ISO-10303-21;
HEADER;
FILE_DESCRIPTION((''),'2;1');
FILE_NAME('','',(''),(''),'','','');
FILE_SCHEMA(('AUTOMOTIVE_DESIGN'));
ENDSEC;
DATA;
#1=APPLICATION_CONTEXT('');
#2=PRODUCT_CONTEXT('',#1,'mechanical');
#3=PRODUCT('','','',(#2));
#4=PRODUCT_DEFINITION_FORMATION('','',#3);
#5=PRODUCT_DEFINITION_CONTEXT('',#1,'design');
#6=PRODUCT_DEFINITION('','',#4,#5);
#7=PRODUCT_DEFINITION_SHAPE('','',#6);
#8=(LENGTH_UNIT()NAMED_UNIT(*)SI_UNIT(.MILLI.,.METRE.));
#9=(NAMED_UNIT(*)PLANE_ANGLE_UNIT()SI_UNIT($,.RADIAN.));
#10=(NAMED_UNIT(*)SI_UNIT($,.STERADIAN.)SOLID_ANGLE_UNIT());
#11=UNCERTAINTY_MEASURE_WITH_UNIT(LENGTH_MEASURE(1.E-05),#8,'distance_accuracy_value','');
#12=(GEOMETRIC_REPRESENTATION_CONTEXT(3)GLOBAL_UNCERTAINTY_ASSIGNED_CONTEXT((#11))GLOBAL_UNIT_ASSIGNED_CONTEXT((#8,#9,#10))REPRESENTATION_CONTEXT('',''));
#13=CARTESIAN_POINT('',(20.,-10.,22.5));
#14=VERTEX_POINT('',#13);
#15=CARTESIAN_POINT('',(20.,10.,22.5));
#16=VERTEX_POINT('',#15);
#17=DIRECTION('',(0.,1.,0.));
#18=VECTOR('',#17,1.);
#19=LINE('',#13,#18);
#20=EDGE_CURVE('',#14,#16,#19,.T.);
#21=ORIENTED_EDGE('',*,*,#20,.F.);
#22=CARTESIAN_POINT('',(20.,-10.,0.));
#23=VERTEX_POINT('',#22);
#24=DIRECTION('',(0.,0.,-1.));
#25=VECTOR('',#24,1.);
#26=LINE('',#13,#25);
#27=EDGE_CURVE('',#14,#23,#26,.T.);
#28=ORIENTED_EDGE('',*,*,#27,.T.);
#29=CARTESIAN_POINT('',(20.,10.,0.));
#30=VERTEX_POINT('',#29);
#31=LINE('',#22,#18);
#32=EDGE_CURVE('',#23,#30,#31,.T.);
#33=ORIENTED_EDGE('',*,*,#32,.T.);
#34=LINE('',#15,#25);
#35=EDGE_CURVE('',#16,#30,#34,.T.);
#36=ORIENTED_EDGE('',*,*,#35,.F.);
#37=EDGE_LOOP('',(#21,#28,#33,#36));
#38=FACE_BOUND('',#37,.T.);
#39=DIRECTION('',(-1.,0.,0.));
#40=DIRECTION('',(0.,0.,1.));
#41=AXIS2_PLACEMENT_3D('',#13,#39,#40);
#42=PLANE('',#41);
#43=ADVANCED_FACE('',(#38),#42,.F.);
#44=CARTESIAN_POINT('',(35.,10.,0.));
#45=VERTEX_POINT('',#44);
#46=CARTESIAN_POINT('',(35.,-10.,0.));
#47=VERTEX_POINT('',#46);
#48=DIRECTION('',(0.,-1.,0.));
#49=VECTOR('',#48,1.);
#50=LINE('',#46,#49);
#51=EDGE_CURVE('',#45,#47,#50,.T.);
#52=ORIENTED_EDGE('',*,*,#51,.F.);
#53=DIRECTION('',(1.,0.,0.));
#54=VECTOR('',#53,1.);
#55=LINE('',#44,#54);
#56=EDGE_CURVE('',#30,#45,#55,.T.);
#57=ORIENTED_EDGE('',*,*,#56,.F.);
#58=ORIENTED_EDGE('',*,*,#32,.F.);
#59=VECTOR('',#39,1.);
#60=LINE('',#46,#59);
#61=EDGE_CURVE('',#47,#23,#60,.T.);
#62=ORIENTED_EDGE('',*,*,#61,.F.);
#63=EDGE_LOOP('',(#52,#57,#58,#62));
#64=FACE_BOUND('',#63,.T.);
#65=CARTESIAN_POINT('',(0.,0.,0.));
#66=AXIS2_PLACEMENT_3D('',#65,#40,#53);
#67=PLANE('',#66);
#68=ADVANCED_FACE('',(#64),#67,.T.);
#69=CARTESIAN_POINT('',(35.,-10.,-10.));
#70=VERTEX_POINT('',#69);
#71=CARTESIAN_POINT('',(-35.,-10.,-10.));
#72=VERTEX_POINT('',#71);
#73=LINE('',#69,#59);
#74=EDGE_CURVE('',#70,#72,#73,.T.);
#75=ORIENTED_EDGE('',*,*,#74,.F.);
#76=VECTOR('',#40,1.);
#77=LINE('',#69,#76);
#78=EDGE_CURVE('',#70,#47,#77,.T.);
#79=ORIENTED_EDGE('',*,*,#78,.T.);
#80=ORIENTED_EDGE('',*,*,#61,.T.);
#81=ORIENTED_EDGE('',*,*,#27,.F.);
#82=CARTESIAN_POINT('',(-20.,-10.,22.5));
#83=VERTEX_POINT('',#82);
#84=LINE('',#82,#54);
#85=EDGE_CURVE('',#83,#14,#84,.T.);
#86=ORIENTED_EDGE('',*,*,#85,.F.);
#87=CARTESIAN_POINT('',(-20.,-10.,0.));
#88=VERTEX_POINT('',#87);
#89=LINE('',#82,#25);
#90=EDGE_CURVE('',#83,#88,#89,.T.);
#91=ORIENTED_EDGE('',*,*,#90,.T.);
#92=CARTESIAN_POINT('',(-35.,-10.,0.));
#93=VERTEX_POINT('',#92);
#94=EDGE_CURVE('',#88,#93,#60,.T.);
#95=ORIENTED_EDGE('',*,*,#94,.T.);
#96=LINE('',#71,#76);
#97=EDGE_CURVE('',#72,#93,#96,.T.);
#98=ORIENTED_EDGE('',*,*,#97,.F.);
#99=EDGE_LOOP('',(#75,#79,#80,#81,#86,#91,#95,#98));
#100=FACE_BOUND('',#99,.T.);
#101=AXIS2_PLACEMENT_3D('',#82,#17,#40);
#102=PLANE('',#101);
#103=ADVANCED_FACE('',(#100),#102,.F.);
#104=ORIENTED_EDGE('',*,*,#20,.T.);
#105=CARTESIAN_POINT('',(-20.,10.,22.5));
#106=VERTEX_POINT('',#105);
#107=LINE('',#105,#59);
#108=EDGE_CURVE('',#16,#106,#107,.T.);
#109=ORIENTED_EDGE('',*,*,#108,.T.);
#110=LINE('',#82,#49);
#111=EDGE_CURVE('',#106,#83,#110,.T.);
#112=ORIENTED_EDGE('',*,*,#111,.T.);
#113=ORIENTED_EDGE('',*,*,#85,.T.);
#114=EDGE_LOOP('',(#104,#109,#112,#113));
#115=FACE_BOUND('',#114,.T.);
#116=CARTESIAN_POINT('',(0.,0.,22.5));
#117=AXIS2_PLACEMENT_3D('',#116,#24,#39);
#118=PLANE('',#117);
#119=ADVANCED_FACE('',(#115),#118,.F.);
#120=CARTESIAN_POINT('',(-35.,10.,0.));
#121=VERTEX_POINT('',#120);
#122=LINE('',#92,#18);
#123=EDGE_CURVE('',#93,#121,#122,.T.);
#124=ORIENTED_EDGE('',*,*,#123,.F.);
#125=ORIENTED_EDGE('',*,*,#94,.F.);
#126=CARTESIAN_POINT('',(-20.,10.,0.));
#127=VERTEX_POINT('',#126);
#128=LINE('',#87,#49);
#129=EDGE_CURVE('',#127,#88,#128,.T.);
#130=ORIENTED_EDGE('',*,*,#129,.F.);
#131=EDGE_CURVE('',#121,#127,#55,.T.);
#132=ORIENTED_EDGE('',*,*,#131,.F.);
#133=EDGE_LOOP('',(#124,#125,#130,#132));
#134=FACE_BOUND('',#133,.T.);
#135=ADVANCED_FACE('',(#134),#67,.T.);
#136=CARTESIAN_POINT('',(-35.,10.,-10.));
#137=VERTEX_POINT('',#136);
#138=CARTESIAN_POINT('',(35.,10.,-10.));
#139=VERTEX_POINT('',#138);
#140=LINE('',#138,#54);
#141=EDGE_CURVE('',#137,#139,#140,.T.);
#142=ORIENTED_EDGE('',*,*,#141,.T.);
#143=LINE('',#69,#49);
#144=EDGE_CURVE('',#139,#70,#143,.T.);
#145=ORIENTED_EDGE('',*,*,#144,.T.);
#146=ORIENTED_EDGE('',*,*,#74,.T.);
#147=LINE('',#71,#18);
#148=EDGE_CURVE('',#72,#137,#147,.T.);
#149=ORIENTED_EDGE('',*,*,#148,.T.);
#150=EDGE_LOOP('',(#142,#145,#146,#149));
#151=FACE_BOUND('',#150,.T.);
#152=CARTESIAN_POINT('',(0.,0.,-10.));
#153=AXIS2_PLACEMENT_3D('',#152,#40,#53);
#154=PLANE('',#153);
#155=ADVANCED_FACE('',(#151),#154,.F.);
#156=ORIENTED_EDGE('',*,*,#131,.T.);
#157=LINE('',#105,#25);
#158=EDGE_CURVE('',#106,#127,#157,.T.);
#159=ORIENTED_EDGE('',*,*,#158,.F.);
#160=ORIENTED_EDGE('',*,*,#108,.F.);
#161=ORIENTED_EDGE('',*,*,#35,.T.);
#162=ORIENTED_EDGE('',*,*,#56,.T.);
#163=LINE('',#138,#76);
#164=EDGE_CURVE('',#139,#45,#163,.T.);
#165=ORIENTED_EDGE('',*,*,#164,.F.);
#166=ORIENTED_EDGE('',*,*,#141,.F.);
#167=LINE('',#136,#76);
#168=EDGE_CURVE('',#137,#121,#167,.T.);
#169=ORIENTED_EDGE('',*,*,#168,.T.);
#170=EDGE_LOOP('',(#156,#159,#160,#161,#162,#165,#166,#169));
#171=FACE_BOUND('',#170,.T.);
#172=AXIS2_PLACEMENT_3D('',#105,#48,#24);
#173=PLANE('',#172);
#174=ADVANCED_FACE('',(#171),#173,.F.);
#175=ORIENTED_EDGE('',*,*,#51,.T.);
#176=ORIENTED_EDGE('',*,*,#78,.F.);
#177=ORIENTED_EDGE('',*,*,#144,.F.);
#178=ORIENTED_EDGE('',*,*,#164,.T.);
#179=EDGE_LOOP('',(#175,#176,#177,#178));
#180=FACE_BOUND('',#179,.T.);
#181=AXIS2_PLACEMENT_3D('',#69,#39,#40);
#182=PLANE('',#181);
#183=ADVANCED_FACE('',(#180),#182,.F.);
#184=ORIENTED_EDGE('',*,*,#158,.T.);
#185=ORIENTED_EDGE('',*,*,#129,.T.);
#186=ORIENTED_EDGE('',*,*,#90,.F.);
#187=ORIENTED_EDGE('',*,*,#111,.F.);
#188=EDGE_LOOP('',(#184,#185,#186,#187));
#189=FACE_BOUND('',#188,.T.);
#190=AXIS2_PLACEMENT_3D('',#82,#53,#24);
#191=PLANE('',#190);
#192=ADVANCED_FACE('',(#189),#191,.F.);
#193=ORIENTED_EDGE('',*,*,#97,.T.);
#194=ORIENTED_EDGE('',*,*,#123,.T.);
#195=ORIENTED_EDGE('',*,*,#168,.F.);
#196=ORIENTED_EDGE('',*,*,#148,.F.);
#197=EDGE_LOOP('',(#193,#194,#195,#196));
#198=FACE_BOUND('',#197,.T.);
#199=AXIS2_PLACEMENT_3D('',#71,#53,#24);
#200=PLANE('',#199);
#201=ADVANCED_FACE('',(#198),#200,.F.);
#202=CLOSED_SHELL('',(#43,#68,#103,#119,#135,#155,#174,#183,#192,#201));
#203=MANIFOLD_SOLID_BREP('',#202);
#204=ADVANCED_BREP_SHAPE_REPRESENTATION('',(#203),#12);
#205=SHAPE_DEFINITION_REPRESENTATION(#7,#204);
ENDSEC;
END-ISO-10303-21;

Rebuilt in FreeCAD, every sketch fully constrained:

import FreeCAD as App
import Part
import Sketcher

V = App.Vector
Q = App.Units.Quantity


def add_polygon(sketch, points):
    """Adds a closed chain of lines whose ends are joined by coincident constraints."""
    first, n = sketch.GeometryCount, len(points)
    for a, b in zip(points, points[1:] + points[:1]):
        sketch.addGeometry(Part.LineSegment(App.Vector(*a, 0), App.Vector(*b, 0)), False)
    for i in range(n):
        sketch.addConstraint(Sketcher.Constraint("Coincident", first + i, 2, first + (i + 1) % n, 1))

doc = App.newDocument("Part")
body = doc.addObject("PartDesign::Body", "Body")

sketch1 = body.newObject("Sketcher::SketchObject", "Sketch")
sketch1.AttachmentSupport = (doc.getObject("XY_Plane"), [""])
sketch1.MapMode = "FlatFace"
add_polygon(sketch1, [(-20, 10), (-20, -10), (20, -10), (20, 10)])
sketch1.addConstraint(Sketcher.Constraint("Vertical", 0))
sketch1.addConstraint(Sketcher.Constraint("Horizontal", 1))
sketch1.addConstraint(Sketcher.Constraint("Vertical", 2))
sketch1.addConstraint(Sketcher.Constraint("Horizontal", 3))
sketch1.addConstraint(Sketcher.Constraint("Symmetric", 0, 2, 2, 2, -1, 1))
sketch1.addConstraint(Sketcher.Constraint("DistanceX", 1, 1, 1, 2, Q("40 mm")))
sketch1.addConstraint(Sketcher.Constraint("DistanceY", 0, 2, 0, 1, Q("20 mm")))
pad1 = body.newObject("PartDesign::Pad", "Pad")
pad1.Profile = sketch1
pad1.Length = 22.5

sketch2 = body.newObject("Sketcher::SketchObject", "Sketch001")
sketch2.AttachmentSupport = (doc.getObject("XY_Plane"), [""])
sketch2.MapMode = "FlatFace"
add_polygon(sketch2, [(35, 10), (35, -10), (-35, -10), (-35, 10)])
sketch2.addConstraint(Sketcher.Constraint("Vertical", 0))
sketch2.addConstraint(Sketcher.Constraint("Horizontal", 1))
sketch2.addConstraint(Sketcher.Constraint("Vertical", 2))
sketch2.addConstraint(Sketcher.Constraint("Horizontal", 3))
sketch2.addConstraint(Sketcher.Constraint("Symmetric", 0, 2, 2, 2, -1, 1))
sketch2.addConstraint(Sketcher.Constraint("DistanceX", 1, 2, 1, 1, Q("70 mm")))
sketch2.addConstraint(Sketcher.Constraint("DistanceY", 0, 2, 0, 1, Q("20 mm")))
pad2 = body.newObject("PartDesign::Pad", "Pad001")
pad2.Profile = sketch2
pad2.Length = 10
pad2.Reversed = True

doc.recompute()
